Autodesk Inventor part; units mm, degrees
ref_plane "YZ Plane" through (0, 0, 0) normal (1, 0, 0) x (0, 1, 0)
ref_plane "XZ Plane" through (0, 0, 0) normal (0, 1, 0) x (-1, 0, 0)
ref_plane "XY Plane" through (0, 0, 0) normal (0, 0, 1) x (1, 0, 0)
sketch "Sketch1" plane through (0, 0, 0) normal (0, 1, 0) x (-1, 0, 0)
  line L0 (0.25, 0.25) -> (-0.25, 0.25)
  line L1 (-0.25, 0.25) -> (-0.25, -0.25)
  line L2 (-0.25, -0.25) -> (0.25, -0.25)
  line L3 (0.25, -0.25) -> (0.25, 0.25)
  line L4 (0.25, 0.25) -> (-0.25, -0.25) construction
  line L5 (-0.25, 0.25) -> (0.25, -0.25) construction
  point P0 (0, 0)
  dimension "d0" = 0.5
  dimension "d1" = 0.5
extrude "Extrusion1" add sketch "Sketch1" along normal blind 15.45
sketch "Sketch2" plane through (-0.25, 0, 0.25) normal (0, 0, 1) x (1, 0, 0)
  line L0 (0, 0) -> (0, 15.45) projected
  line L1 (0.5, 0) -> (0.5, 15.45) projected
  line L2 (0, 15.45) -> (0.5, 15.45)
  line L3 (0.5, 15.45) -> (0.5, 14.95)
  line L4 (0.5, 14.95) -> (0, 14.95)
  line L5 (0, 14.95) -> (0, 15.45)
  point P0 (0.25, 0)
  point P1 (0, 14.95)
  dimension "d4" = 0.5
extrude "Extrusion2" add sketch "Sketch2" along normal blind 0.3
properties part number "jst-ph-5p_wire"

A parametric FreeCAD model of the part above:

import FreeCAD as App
import Part
import Sketcher
from FreeCAD import Vector
Q = App.Units.Quantity


def add_polygon(sketch, points):
    """Adds a closed chain of lines whose ends are joined by coincident constraints."""
    first, n = sketch.GeometryCount, len(points)
    for a, b in zip(points, points[1:] + points[:1]):
        sketch.addGeometry(Part.LineSegment(App.Vector(*a, 0), App.Vector(*b, 0)), False)
    for i in range(n):
        sketch.addConstraint(Sketcher.Constraint("Coincident", first + i, 2, first + (i + 1) % n, 1))

doc = App.newDocument("Part")
body = doc.addObject("PartDesign::Body", "Body")

sketch1 = doc.addObject("Sketcher::SketchObject", "Sketch")
body.addObject(sketch1)
sketch1.AttachmentSupport = (doc.XZ_Plane, [""])
sketch1.MapMode = "FlatFace"
add_polygon(sketch1, [(-0.2, -0.2), (-0.2, 0.2), (0.2, 0.2), (0.2, -0.2)])
sketch1.addConstraint([
    Sketcher.Constraint("Vertical", 0),
    Sketcher.Constraint("Horizontal", 1),
    Sketcher.Constraint("Vertical", 2),
    Sketcher.Constraint("Horizontal", 3),
    Sketcher.Constraint("Symmetric", 0, 2, 2, 2, -1, 1),
    Sketcher.Constraint("Equal", 3, 0),
    Sketcher.Constraint("DistanceX", 1, 1, 1, 2, Q("0.5 mm")),
])
pad1 = doc.addObject("PartDesign::Pad", "Pad")
body.addObject(pad1)
pad1.Profile = sketch1
pad1.Length = 15.45
pad1.Reversed = True

sketch2 = doc.addObject("Sketcher::SketchObject", "Sketch001")
body.addObject(sketch2)
sketch2.AttachmentSupport = (doc.XY_Plane, [""])
sketch2.MapMode = "FlatFace"
sketch2.AttachmentOffset = App.Placement(Vector(0, 0, 0.25), App.Rotation())
add_polygon(sketch2, [(-0.2, 15.4), (-0.2, 14.9), (0.2, 14.9), (0.2, 15.4)])
sketch2.addConstraint([
    Sketcher.Constraint("Vertical", 0),
    Sketcher.Constraint("Horizontal", 1),
    Sketcher.Constraint("Vertical", 2),
    Sketcher.Constraint("Horizontal", 3),
    Sketcher.Constraint("Equal", 3, 0),
    Sketcher.Constraint("DistanceX", 1, 1, 1, 2, Q("0.5 mm")),
    Sketcher.Constraint("DistanceX", 0, 2, -1, 1, Q("0.25 mm")),
    Sketcher.Constraint("DistanceY", -1, 1, 0, 2, Q("14.95 mm")),
])
pad2 = doc.addObject("PartDesign::Pad", "Pad001")
body.addObject(pad2)
pad2.Profile = sketch2
pad2.Length = 0.3

doc.recompute()
